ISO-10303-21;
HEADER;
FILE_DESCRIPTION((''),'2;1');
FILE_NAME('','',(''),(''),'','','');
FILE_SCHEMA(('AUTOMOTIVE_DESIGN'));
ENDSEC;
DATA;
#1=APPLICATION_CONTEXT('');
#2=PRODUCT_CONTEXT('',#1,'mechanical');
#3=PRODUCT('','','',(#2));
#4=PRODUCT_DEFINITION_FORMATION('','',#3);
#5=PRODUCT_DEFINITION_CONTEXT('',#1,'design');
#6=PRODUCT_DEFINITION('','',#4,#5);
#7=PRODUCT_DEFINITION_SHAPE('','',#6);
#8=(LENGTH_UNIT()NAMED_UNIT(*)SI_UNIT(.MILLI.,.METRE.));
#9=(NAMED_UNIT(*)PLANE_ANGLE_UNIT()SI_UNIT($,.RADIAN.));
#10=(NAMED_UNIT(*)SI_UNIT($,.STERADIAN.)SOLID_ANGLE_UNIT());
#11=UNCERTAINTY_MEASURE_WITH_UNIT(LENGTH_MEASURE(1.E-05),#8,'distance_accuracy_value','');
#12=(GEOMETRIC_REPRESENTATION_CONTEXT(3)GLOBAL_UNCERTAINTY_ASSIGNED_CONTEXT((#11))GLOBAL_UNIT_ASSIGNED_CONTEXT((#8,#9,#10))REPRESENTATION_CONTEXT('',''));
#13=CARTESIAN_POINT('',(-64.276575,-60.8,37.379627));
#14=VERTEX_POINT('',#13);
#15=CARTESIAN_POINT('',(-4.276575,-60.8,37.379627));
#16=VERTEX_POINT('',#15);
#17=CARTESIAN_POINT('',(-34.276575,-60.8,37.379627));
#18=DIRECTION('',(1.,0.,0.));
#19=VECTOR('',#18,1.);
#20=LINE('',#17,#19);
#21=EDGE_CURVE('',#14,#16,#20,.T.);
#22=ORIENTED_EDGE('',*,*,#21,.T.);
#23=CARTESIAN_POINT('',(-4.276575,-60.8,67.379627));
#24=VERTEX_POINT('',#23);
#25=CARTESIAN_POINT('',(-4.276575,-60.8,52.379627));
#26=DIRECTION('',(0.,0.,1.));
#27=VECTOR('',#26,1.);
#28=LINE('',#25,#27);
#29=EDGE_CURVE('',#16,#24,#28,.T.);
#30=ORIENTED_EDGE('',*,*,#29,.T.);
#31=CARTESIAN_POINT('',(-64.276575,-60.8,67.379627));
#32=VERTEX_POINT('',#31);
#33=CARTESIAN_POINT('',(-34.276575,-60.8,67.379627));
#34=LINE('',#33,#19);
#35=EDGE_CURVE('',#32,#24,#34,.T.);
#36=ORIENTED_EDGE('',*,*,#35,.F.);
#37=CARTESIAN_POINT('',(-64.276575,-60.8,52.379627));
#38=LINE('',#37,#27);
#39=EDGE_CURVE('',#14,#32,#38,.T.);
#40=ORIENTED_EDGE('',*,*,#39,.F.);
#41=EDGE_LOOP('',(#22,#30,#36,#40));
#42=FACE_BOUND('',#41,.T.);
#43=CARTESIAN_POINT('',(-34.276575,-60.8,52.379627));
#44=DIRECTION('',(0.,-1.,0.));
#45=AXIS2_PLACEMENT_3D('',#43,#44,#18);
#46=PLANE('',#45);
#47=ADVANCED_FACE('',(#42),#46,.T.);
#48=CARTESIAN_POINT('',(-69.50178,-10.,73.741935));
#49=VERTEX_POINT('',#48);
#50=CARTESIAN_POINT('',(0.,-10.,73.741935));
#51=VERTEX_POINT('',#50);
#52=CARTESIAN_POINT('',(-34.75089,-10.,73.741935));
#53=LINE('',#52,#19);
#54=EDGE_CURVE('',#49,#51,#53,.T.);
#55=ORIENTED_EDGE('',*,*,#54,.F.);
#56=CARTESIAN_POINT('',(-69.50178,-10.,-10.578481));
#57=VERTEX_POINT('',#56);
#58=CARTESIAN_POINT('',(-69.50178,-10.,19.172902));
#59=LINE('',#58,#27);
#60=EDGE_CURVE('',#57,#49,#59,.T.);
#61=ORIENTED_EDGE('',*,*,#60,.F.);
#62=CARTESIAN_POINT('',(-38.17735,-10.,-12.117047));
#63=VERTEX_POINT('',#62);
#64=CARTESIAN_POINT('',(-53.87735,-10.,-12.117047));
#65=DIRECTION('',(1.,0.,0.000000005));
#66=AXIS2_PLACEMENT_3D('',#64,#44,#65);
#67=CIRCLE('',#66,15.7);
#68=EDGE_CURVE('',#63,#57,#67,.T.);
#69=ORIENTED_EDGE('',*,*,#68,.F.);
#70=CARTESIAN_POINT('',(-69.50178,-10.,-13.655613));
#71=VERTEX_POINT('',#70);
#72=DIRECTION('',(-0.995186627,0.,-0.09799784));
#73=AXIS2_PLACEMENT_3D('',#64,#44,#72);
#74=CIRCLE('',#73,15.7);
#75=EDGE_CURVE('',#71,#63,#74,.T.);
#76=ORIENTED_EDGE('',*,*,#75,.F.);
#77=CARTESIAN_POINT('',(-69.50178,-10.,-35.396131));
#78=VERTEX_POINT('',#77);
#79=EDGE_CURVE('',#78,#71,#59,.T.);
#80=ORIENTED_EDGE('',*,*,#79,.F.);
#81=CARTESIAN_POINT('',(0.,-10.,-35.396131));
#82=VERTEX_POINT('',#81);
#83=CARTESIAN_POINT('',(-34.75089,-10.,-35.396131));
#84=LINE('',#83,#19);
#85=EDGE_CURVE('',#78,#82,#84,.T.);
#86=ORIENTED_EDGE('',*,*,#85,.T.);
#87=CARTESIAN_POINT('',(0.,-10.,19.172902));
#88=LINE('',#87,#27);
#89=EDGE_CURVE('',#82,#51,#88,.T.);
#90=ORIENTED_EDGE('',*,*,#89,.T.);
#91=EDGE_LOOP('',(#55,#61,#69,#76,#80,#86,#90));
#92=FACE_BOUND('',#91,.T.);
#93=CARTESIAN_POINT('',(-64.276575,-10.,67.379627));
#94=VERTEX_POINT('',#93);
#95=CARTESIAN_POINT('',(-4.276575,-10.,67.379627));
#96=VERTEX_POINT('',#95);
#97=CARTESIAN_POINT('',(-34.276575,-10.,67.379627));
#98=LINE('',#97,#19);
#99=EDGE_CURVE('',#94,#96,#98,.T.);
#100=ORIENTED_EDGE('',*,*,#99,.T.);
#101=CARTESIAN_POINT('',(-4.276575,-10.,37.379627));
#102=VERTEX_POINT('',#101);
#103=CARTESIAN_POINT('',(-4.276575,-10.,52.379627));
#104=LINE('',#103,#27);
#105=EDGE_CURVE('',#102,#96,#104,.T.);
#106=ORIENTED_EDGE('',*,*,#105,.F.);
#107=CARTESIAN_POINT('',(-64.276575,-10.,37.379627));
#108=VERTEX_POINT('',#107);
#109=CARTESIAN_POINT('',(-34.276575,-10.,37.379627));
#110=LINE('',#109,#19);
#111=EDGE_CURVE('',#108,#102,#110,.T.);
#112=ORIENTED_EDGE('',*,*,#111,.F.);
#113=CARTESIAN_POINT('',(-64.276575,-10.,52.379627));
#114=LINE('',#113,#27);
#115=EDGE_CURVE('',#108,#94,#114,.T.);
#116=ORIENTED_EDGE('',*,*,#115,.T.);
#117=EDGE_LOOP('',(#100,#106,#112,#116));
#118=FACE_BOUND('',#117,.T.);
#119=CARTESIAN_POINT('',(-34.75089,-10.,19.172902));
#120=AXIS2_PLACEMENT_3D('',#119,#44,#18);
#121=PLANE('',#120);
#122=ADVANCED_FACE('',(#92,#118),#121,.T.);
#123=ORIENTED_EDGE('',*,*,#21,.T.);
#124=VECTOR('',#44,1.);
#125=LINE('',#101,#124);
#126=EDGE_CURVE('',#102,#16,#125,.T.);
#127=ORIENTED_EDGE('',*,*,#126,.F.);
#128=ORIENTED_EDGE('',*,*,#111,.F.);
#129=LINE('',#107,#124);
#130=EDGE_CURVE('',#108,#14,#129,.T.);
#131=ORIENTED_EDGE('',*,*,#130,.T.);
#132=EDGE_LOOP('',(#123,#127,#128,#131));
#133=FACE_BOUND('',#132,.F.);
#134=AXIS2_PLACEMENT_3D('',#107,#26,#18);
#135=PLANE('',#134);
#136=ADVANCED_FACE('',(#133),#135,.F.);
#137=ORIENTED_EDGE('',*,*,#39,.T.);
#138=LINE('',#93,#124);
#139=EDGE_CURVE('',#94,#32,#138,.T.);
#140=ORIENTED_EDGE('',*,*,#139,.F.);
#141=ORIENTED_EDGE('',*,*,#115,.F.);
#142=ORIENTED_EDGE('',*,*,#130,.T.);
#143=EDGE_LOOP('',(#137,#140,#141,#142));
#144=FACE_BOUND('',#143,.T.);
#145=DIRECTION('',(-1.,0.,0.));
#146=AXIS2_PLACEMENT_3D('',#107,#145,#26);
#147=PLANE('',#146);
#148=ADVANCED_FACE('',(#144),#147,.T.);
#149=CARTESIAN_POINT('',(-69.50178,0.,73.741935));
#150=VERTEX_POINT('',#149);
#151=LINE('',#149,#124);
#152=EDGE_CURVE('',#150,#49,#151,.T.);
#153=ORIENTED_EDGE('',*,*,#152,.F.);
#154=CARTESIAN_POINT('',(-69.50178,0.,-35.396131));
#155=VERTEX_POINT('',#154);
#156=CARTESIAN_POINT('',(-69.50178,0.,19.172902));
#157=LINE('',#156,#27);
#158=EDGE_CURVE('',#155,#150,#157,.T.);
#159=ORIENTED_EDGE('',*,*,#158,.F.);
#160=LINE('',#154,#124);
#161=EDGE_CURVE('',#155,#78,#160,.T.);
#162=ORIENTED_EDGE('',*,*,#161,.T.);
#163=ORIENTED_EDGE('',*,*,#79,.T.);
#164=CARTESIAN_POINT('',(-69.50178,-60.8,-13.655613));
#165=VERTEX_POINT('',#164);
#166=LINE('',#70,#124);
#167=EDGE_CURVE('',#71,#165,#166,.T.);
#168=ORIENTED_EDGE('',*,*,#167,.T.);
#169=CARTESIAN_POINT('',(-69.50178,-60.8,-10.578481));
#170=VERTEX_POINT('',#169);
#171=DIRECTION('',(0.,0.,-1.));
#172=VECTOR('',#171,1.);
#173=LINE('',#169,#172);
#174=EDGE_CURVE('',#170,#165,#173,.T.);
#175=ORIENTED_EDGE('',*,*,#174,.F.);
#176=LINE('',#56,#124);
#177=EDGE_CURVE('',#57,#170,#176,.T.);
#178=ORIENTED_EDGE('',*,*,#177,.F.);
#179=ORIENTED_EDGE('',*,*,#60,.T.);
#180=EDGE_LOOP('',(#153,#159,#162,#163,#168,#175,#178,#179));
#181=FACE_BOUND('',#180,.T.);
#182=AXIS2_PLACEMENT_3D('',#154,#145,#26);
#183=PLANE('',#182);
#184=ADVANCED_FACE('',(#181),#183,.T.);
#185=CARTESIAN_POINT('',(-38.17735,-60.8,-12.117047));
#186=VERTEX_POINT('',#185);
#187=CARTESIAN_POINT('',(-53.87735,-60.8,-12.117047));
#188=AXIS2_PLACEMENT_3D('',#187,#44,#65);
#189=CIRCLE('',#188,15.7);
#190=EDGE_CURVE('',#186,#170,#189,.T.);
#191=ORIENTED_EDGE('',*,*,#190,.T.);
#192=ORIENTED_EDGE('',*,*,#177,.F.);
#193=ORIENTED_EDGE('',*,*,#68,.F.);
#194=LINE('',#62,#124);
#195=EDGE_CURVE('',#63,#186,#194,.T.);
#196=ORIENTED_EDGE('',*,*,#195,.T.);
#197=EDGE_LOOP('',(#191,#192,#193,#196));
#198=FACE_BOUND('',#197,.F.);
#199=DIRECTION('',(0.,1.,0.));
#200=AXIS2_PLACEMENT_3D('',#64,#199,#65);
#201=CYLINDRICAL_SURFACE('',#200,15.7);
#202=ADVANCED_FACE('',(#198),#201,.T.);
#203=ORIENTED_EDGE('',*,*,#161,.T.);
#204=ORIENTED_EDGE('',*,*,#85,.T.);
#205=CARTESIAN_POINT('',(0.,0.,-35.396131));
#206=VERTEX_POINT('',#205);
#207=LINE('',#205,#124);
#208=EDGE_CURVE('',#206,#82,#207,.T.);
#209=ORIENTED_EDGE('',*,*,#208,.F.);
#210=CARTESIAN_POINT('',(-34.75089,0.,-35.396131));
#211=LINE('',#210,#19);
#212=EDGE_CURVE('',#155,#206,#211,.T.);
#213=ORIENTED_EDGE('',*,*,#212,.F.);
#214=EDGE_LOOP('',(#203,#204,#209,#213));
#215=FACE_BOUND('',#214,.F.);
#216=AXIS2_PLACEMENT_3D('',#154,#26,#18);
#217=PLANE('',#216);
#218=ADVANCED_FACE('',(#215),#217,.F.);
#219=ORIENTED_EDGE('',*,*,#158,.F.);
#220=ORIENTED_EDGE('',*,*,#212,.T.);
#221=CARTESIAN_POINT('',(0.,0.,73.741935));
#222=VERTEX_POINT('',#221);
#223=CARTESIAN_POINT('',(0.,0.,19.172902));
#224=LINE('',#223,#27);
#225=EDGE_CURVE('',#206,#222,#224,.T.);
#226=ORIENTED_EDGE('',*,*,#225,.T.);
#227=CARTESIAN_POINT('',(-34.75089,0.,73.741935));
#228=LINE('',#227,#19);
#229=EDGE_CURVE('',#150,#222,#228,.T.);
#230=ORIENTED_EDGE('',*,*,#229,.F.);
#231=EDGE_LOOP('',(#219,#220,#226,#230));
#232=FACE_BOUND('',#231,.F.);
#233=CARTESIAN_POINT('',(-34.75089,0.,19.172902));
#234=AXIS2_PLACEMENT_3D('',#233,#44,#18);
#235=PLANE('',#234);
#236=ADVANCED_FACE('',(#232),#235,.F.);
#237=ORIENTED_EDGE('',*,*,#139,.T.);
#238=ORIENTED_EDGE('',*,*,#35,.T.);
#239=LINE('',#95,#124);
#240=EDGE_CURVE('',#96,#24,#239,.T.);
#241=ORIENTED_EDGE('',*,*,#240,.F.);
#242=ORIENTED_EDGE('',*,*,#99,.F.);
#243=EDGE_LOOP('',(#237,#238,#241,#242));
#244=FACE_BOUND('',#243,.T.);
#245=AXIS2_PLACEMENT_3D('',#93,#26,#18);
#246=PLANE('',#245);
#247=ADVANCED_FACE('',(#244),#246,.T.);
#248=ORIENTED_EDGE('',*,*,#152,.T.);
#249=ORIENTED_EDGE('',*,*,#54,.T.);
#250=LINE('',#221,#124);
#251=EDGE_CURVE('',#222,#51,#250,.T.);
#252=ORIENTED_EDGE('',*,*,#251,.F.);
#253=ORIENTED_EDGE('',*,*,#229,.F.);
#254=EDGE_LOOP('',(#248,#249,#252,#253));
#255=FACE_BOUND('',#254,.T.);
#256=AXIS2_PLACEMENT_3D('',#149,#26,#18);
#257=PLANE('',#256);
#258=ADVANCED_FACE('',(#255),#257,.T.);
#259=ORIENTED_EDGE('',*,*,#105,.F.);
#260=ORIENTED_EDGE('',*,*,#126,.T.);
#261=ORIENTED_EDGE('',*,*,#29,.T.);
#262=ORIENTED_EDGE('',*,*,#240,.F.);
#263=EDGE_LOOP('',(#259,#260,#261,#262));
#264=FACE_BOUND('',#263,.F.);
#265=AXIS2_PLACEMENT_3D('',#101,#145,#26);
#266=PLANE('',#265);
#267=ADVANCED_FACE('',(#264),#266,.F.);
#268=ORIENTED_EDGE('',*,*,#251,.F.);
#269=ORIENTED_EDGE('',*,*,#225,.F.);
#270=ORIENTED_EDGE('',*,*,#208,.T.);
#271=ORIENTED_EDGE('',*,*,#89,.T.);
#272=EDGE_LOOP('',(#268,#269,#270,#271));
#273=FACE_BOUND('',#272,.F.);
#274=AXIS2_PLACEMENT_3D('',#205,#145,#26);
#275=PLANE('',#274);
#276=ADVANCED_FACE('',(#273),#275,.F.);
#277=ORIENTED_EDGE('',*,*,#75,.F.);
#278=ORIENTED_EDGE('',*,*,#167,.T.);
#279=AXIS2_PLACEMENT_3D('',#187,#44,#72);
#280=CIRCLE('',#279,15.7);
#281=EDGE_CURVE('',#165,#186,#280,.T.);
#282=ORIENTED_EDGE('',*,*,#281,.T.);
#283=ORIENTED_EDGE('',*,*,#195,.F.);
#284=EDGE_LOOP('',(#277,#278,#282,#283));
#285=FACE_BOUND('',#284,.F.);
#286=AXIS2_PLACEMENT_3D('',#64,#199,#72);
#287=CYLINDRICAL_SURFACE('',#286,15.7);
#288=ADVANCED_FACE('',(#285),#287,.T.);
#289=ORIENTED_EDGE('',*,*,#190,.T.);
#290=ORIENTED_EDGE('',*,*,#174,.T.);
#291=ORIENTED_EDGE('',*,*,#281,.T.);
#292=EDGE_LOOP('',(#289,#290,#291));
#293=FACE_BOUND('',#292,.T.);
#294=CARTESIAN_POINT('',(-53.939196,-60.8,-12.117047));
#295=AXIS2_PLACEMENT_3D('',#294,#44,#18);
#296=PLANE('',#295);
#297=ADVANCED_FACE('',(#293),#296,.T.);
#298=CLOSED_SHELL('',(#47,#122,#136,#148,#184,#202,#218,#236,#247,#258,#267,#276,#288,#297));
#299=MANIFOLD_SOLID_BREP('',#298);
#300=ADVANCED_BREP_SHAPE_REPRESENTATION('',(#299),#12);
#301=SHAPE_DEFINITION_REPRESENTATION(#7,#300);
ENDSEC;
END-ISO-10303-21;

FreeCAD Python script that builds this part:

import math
import FreeCAD as App
import Part
import Sketcher
from FreeCAD import Vector

doc = App.newDocument("Part")
body = doc.addObject("PartDesign::Body", "Body")

# Sketch on XZ plane
sketch1 = body.newObject("Sketcher::SketchObject", "Sketch")
sketch1.AttachmentSupport = (doc.getObject("XZ_Plane"), [""])
sketch1.MapMode = "FlatFace"
sketch1.addGeometry([
    Part.LineSegment(Vector(-70, 74, 0), Vector(-70, -35, 0)),
    Part.LineSegment(Vector(-70, -35, 0), Vector(0, -35, 0)),
    Part.LineSegment(Vector(0, -35, 0), Vector(0, 74, 0)),
    Part.LineSegment(Vector(0, 74, 0), Vector(-70, 74, 0)),
], False)
sketch1.addConstraint([
    Sketcher.Constraint("Coincident", 0, 2, 1, 1),
    Sketcher.Constraint("Coincident", 1, 2, 2, 1),
    Sketcher.Constraint("Coincident", 2, 2, 3, 1),
    Sketcher.Constraint("Coincident", 3, 2, 0, 1),
    Sketcher.Constraint("Vertical", 0),
    Sketcher.Constraint("Horizontal", 1),
    Sketcher.Constraint("Vertical", 2),
    Sketcher.Constraint("Horizontal", 3),
    Sketcher.Constraint("PointOnObject", 1, 2, -2),
    Sketcher.Constraint("DistanceX", 1, 1, 1, 2, 69.50178),
    Sketcher.Constraint("DistanceY", 0, 2, 0, 1, 109.138066),
    Sketcher.Constraint("DistanceY", 0, 2, -1, 1, 35.396131),
])
pad1 = body.newObject("PartDesign::Pad", "Pad")
pad1.Profile = sketch1
pad1.Length = 10

# Sketch on XZ plane
sketch2 = body.newObject("Sketcher::SketchObject", "Sketch001")
sketch2.AttachmentSupport = (doc.getObject("XZ_Plane"), [""])
sketch2.MapMode = "FlatFace"
sketch2.AttachmentOffset = App.Placement(Vector(0, 0, 10), App.Rotation())
sketch2.addGeometry([
    Part.LineSegment(Vector(-64, 67, 0), Vector(-64, 37, 0)),
    Part.LineSegment(Vector(-64, 37, 0), Vector(-4, 37, 0)),
    Part.LineSegment(Vector(-4, 37, 0), Vector(-4, 67, 0)),
    Part.LineSegment(Vector(-4, 67, 0), Vector(-64, 67, 0)),
], False)
sketch2.addConstraint([
    Sketcher.Constraint("Coincident", 0, 2, 1, 1),
    Sketcher.Constraint("Coincident", 1, 2, 2, 1),
    Sketcher.Constraint("Coincident", 2, 2, 3, 1),
    Sketcher.Constraint("Coincident", 3, 2, 0, 1),
    Sketcher.Constraint("Vertical", 0),
    Sketcher.Constraint("Horizontal", 1),
    Sketcher.Constraint("Vertical", 2),
    Sketcher.Constraint("Horizontal", 3),
    Sketcher.Constraint("DistanceX", 1, 1, 1, 2, 60.0),
    Sketcher.Constraint("DistanceY", 0, 2, 0, 1, 30.0),
    Sketcher.Constraint("DistanceX", 0, 2, -1, 1, 64.276575),
    Sketcher.Constraint("DistanceY", -1, 1, 0, 2, 37.379627),
])
pad2 = body.newObject("PartDesign::Pad", "Pad001")
pad2.Profile = sketch2
pad2.Length = 50.8

# Sketch on XZ plane
sketch3 = body.newObject("Sketcher::SketchObject", "Sketch002")
sketch3.AttachmentSupport = (doc.getObject("XZ_Plane"), [""])
sketch3.MapMode = "FlatFace"
sketch3.AttachmentOffset = App.Placement(Vector(0, 0, 10), App.Rotation())
sketch3.addGeometry([
    Part.ArcOfCircle(Part.Circle(Vector(-53.9, -12.1, 0), Vector(0, 0, 1), 15.7), math.radians(-174), math.radians(0)),
    Part.ArcOfCircle(Part.Circle(Vector(-53.9, -12.1, 0), Vector(0, 0, 1), 15.7), math.radians(0), math.radians(174)),
    Part.LineSegment(Vector(-69.5, -10.6, 0), Vector(-69.5, -13.7, 0)),
], False)
sketch3.addConstraint([
    Sketcher.Constraint("Tangent", 0, 2, 1, 1),
    Sketcher.Constraint("Coincident", 1, 2, 2, 1),
    Sketcher.Constraint("Coincident", 2, 2, 0, 1),
    Sketcher.Constraint("Vertical", 2),
    Sketcher.Constraint("Equal", 0, 1),
    Sketcher.Constraint("Horizontal", 1, 3, 0, 2),
    Sketcher.Constraint("Radius", 0, 15.7),
    Sketcher.Constraint("DistanceY", 2, 2, 2, 1, 3.077132),
    Sketcher.Constraint("DistanceX", 0, 3, -1, 1, 53.87735),
    Sketcher.Constraint("DistanceY", 1, 2, -1, 1, 10.578481),
])
pad3 = body.newObject("PartDesign::Pad", "Pad002")
pad3.Profile = sketch3
pad3.Length = 50.8

doc.recompute()
